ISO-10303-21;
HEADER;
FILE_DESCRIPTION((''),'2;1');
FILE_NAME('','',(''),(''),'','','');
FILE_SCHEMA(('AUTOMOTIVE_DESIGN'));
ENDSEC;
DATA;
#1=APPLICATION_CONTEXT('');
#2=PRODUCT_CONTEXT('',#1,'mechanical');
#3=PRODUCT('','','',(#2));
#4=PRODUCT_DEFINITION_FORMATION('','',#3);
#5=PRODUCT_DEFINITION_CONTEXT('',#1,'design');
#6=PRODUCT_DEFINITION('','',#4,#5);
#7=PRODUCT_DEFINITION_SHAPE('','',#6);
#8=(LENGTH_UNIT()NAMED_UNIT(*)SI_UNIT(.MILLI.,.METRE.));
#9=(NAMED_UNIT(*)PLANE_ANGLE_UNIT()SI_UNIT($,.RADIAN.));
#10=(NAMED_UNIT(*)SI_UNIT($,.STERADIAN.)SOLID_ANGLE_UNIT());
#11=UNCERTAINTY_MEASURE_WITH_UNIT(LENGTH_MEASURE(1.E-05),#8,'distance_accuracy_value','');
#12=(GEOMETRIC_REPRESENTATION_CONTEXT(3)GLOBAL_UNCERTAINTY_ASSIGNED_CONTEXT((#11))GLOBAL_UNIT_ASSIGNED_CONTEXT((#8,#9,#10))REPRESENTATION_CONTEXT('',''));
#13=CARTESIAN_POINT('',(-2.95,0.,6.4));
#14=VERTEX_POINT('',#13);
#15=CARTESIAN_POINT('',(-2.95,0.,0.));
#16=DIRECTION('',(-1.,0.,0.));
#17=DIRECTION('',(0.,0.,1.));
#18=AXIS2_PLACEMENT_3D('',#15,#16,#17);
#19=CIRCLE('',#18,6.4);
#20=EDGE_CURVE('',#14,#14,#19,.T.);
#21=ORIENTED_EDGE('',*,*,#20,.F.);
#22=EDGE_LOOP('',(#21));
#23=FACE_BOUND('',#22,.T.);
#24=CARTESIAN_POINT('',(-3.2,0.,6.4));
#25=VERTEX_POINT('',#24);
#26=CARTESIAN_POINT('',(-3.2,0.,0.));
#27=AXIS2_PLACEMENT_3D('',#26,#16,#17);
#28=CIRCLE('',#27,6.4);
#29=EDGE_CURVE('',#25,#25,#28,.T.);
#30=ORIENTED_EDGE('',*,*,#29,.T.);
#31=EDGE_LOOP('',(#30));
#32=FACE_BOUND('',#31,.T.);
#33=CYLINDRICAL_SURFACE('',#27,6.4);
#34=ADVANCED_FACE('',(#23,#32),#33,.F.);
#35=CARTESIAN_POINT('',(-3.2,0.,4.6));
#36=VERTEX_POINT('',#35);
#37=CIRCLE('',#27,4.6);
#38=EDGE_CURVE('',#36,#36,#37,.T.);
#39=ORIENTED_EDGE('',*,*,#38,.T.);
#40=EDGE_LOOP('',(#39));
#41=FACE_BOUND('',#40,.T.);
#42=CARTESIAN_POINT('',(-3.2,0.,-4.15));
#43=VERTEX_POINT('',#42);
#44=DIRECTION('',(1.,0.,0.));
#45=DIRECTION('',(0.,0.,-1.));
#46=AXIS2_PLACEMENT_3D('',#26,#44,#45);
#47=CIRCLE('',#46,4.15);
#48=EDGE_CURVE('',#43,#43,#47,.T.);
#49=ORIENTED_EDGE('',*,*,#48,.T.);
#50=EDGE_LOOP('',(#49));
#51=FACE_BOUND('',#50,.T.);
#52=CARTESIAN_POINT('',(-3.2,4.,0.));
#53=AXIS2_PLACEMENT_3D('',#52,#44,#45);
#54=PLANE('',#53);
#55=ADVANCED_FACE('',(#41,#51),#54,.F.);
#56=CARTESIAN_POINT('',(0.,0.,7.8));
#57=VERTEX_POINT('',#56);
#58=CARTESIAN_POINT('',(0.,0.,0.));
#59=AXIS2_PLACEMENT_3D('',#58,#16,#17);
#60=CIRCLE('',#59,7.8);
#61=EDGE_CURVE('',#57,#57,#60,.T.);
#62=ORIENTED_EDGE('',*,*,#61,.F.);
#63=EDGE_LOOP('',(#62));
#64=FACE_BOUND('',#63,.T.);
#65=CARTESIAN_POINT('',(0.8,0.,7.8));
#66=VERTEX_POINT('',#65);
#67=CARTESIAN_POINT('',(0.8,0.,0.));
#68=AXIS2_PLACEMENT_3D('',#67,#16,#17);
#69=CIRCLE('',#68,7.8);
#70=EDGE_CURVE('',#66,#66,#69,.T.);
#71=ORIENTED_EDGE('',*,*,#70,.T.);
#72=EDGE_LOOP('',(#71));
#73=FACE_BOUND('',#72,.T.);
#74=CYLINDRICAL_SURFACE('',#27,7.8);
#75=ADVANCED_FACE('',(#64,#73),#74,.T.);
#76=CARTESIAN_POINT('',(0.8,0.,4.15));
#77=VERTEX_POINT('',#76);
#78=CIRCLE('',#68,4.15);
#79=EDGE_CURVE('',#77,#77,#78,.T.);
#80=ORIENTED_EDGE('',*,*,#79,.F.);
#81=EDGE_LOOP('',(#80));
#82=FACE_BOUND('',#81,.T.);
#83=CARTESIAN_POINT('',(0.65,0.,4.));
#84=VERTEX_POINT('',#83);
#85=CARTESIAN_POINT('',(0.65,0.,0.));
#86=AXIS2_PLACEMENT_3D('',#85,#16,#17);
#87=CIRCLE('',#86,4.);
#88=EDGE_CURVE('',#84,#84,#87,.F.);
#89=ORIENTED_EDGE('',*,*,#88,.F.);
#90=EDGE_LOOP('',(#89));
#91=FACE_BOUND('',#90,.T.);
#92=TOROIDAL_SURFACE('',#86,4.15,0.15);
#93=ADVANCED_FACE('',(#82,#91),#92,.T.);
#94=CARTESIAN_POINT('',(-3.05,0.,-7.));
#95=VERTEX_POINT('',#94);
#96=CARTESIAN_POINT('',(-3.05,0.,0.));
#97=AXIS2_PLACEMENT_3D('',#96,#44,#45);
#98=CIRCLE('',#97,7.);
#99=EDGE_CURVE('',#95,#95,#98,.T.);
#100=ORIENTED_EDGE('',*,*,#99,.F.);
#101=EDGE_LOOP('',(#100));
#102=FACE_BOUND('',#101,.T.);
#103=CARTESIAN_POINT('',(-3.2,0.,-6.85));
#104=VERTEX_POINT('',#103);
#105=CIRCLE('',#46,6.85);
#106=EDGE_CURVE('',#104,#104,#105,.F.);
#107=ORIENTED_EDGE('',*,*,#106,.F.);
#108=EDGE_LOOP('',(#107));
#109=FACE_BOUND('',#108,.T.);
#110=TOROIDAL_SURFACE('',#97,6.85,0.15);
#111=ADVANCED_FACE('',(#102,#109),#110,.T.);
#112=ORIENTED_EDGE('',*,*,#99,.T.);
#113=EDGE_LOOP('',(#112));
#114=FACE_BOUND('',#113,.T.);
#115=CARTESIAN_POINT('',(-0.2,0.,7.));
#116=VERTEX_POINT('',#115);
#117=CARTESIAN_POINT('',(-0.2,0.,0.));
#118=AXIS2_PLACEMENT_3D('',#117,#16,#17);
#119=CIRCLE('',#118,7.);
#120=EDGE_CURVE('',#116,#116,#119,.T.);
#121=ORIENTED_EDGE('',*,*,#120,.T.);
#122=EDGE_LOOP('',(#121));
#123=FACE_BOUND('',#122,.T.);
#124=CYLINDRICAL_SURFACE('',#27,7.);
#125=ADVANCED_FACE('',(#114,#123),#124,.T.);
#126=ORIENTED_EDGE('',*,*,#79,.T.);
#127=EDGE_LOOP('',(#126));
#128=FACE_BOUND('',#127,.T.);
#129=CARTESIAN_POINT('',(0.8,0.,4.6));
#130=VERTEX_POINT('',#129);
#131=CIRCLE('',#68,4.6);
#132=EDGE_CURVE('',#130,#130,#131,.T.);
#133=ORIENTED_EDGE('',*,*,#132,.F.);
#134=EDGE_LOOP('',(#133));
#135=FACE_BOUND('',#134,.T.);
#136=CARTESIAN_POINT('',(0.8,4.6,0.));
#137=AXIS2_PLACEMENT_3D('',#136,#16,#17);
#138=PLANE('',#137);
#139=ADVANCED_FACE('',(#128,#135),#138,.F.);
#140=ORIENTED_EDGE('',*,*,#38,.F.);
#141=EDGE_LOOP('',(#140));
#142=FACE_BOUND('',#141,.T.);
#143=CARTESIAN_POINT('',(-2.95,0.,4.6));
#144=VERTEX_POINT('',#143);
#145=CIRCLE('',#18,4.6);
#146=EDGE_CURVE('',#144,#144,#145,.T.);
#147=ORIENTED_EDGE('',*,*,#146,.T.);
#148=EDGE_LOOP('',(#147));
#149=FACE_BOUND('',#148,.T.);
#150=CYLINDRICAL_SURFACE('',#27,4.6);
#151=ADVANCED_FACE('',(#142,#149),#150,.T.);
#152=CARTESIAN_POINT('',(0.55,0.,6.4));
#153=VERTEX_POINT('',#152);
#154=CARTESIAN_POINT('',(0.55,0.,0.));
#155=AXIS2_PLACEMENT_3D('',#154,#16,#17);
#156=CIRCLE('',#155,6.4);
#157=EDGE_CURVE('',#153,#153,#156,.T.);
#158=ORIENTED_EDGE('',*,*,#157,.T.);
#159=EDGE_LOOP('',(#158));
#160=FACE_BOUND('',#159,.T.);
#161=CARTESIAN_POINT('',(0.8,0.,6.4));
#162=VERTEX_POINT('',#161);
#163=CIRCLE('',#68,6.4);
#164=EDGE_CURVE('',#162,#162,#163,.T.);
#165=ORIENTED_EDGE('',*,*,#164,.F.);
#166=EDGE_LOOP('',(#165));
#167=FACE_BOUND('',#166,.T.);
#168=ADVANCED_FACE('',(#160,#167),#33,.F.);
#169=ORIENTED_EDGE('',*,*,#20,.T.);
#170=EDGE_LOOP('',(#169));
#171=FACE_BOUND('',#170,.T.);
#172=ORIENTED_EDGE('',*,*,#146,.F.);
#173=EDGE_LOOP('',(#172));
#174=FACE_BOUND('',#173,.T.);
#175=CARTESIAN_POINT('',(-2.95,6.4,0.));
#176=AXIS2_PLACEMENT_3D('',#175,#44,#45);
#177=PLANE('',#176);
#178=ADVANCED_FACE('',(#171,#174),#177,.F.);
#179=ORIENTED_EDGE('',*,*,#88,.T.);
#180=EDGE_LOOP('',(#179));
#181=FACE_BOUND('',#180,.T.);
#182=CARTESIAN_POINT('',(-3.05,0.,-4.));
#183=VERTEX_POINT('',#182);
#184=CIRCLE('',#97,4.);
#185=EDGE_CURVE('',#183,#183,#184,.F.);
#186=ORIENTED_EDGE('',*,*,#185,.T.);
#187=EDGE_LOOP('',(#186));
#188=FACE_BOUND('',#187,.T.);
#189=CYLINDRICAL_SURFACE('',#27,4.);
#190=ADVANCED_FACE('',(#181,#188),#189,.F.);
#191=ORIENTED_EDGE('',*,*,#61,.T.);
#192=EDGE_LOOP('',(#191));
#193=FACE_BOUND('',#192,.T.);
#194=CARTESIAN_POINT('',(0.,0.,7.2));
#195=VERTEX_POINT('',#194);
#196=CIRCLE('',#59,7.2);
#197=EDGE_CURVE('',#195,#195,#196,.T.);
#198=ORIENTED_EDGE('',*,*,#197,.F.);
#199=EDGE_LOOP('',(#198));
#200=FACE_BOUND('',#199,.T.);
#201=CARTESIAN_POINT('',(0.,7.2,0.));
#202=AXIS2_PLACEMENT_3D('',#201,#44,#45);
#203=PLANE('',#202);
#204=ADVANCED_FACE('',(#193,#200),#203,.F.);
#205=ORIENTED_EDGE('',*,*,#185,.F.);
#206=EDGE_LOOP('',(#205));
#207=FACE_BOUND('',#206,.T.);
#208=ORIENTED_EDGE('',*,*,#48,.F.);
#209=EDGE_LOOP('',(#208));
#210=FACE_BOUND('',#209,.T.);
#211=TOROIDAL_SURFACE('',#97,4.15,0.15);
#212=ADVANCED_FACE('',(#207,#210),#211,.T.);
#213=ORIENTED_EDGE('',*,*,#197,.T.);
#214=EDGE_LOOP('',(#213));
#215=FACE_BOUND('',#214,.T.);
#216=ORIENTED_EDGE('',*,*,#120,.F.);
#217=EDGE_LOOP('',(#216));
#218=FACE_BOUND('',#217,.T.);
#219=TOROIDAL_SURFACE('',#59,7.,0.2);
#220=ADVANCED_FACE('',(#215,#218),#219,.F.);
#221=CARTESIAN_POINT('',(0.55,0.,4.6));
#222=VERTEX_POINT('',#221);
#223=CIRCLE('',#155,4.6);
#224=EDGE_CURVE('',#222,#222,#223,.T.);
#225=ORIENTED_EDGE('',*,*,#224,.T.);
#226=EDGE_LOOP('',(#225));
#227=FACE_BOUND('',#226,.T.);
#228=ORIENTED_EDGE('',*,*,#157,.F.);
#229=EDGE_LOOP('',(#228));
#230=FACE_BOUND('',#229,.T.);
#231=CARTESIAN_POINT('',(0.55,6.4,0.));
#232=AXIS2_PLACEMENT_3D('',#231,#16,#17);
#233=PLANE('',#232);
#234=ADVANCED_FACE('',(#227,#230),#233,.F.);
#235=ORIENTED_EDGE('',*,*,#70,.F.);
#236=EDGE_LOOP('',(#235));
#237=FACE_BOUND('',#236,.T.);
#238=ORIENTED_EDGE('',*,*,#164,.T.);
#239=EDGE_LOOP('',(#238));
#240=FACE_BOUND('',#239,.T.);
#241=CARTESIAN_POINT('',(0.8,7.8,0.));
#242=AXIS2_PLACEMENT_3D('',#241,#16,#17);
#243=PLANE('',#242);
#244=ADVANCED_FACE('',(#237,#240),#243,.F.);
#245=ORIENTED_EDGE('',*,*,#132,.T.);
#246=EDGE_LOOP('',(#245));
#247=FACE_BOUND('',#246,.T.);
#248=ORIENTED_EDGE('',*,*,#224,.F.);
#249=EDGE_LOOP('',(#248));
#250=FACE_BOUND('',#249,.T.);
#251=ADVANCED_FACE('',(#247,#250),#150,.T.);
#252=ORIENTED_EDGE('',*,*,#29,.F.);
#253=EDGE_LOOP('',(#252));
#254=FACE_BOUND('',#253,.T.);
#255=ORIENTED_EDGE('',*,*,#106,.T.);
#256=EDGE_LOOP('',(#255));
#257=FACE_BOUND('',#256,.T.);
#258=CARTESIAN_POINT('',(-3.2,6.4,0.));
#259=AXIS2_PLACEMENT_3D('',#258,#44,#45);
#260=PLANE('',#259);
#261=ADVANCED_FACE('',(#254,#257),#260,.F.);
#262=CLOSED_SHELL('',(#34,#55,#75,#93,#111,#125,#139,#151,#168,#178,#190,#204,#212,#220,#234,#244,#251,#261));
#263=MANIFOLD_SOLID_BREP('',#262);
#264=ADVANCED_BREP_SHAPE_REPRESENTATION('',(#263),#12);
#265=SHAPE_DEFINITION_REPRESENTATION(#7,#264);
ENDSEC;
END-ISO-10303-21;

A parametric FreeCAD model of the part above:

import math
import FreeCAD as App
import Part
import Sketcher

V = App.Vector


def edges_at(feature, points):
    """Names of the edges that pass closest to the given points."""
    edges = feature.Shape.Edges
    near = lambda p: min(range(len(edges)), key=lambda i: edges[i].distToShape(Part.Vertex(*p))[0])
    return sorted({f"Edge{near(p) + 1}" for p in points})

doc = App.newDocument("Part")
body = doc.addObject("PartDesign::Body", "Body")

# Sketch on XY plane
sketch1 = body.newObject("Sketcher::SketchObject", "Sketch")
sketch1.AttachmentSupport = (doc.getObject("XY_Plane"), [""])
sketch1.MapMode = "FlatFace"
sketch1.addGeometry([
    Part.LineSegment(V(0, 7.8, 0), V(0, 7.2, 0)),  # 0
    Part.ArcOfCircle(Part.Circle(V(0, 7, 0), V(0, 0, 1), 0.2), math.radians(180), math.radians(450)),  # 1
    Part.LineSegment(V(-0.2, 7, 0), V(-3.2, 7, 0)),  # 2
    Part.LineSegment(V(-3.2, 7, 0), V(-3.2, 6.4, 0)),  # 3
    Part.LineSegment(V(-3.2, 6.4, 0), V(-2.95, 6.4, 0)),  # 4
    Part.LineSegment(V(-2.95, 6.4, 0), V(-2.95, 4.6, 0)),  # 5
    Part.LineSegment(V(-2.95, 4.6, 0), V(-3.2, 4.6, 0)),  # 6
    Part.LineSegment(V(-3.2, 4.6, 0), V(-3.2, 4, 0)),  # 7
    Part.LineSegment(V(-3.2, 4, 0), V(0.8, 4, 0)),  # 8
    Part.LineSegment(V(0.8, 4, 0), V(0.8, 4.6, 0)),  # 9
    Part.LineSegment(V(0.8, 4.6, 0), V(0.55, 4.6, 0)),  # 10
    Part.LineSegment(V(0.55, 4.6, 0), V(0.55, 6.4, 0)),  # 11
    Part.LineSegment(V(0.55, 6.4, 0), V(0.8, 6.4, 0)),  # 12
    Part.LineSegment(V(0.8, 6.4, 0), V(0.8, 7.8, 0)),  # 13
    Part.LineSegment(V(0.8, 7.8, 0), V(0, 7.8, 0)),  # 14
], False)
sketch1.addConstraint([
    Sketcher.Constraint("Coincident", 0, 2, 1, 2),
    Sketcher.Constraint("Coincident", 1, 1, 2, 1),
    Sketcher.Constraint("Coincident", 2, 2, 3, 1),
    Sketcher.Constraint("Coincident", 3, 2, 4, 1),
    Sketcher.Constraint("Coincident", 4, 2, 5, 1),
    Sketcher.Constraint("Coincident", 5, 2, 6, 1),
    Sketcher.Constraint("Coincident", 6, 2, 7, 1),
    Sketcher.Constraint("Coincident", 7, 2, 8, 1),
    Sketcher.Constraint("Coincident", 8, 2, 9, 1),
    Sketcher.Constraint("Coincident", 9, 2, 10, 1),
    Sketcher.Constraint("Coincident", 10, 2, 11, 1),
    Sketcher.Constraint("Coincident", 11, 2, 12, 1),
    Sketcher.Constraint("Coincident", 12, 2, 13, 1),
    Sketcher.Constraint("Coincident", 13, 2, 14, 1),
    Sketcher.Constraint("Coincident", 14, 2, 0, 1),
    Sketcher.Constraint("Vertical", 0),
    Sketcher.Constraint("Horizontal", 2),
    Sketcher.Constraint("Vertical", 3),
    Sketcher.Constraint("Horizontal", 4),
    Sketcher.Constraint("Vertical", 5),
    Sketcher.Constraint("Horizontal", 6),
    Sketcher.Constraint("Vertical", 7),
    Sketcher.Constraint("Horizontal", 8),
    Sketcher.Constraint("Vertical", 9),
    Sketcher.Constraint("Horizontal", 10),
    Sketcher.Constraint("Vertical", 11),
    Sketcher.Constraint("Horizontal", 12),
    Sketcher.Constraint("Vertical", 13),
    Sketcher.Constraint("Horizontal", 14),
    Sketcher.Constraint("PointOnObject", 1, 3, -2),
    Sketcher.Constraint("PointOnObject", 0, 2, -2),
    Sketcher.Constraint("Horizontal", 6, 2, 9, 2),
    Sketcher.Constraint("Horizontal", 4, 2, 11, 2),
    Sketcher.Constraint("Vertical", 3, 2, 6, 2),
    Sketcher.Constraint("Vertical", 9, 2, 12, 2),
    Sketcher.Constraint("Equal", 6, 10),
    Sketcher.Constraint("Equal", 0, 3),
    Sketcher.Constraint("Equal", 3, 7),
    Sketcher.Constraint("Radius", 1, 0.2),
    Sketcher.Constraint("DistanceX", 2, 2, 2, 1, 3.0),
    Sketcher.Constraint("DistanceX", 8, 1, 8, 2, 4.0),
    Sketcher.Constraint("DistanceY", 0, 2, 0, 1, 0.6),
    Sketcher.Constraint("DistanceY", 5, 2, 5, 1, 1.8),
    Sketcher.Constraint("DistanceY", 13, 1, 13, 2, 1.4),
    Sketcher.Constraint("DistanceY", -1, 1, 1, 3, 7.0),
    Sketcher.Constraint("DistanceX", 4, 1, 4, 2, 0.25),
])
revolution = body.newObject("PartDesign::Revolution", "Revolution")
revolution.Profile = sketch1
revolution.ReferenceAxis = (sketch1, ["H_Axis"])
revolution.Angle = 360
doc.recompute()

fillet = body.newObject("PartDesign::Fillet", "Fillet")
fillet.Base = (revolution, edges_at(revolution, [(0.8, 0, -4), (-3.2, 0, -4), (-3.2, 0, -7)]))
fillet.Radius = 0.15

doc.recompute()
